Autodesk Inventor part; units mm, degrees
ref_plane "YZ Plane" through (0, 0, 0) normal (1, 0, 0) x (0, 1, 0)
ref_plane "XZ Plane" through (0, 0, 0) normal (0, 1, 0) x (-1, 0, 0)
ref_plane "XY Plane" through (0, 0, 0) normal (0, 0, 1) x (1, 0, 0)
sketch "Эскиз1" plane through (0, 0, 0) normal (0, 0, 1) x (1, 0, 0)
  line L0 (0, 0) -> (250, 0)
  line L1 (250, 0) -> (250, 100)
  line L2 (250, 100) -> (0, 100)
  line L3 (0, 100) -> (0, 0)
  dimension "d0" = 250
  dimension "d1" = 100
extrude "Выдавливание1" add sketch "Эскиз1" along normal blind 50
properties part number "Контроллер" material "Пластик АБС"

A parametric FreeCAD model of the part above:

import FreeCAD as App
import Part
import Sketcher

doc = App.newDocument("Part")
body = doc.addObject("PartDesign::Body", "Body")

sketch1 = doc.addObject("Sketcher::SketchObject", "Sketch")
body.addObject(sketch1)
sketch1.AttachmentSupport = (doc.XY_Plane, [""])
sketch1.MapMode = "FlatFace"
sketch1.addGeometry(Part.LineSegment(App.Vector(0, 100, 0), App.Vector(0, 0, 0)), False)
sketch1.addGeometry(Part.LineSegment(App.Vector(0, 0, 0), App.Vector(250, 0, 0)), False)
sketch1.addGeometry(Part.LineSegment(App.Vector(250, 0, 0), App.Vector(250, 100, 0)), False)
sketch1.addGeometry(Part.LineSegment(App.Vector(250, 100, 0), App.Vector(0, 100, 0)), False)
sketch1.addConstraint(Sketcher.Constraint("Coincident", 0, 2, 1, 1))
sketch1.addConstraint(Sketcher.Constraint("Coincident", 1, 2, 2, 1))
sketch1.addConstraint(Sketcher.Constraint("Coincident", 2, 2, 3, 1))
sketch1.addConstraint(Sketcher.Constraint("Coincident", 3, 2, 0, 1))
sketch1.addConstraint(Sketcher.Constraint("Vertical", 0))
sketch1.addConstraint(Sketcher.Constraint("Horizontal", 1))
sketch1.addConstraint(Sketcher.Constraint("Vertical", 2))
sketch1.addConstraint(Sketcher.Constraint("Horizontal", 3))
sketch1.addConstraint(Sketcher.Constraint("Coincident", 0, 2, -1, 1))
sketch1.addConstraint(Sketcher.Constraint("DistanceX", 1, 1, 1, 2, 250.0))
sketch1.addConstraint(Sketcher.Constraint("DistanceY", 0, 2, 0, 1, 100.0))
pad1 = doc.addObject("PartDesign::Pad", "Pad")
body.addObject(pad1)
pad1.Profile = sketch1
pad1.Length = 50

doc.recompute()
